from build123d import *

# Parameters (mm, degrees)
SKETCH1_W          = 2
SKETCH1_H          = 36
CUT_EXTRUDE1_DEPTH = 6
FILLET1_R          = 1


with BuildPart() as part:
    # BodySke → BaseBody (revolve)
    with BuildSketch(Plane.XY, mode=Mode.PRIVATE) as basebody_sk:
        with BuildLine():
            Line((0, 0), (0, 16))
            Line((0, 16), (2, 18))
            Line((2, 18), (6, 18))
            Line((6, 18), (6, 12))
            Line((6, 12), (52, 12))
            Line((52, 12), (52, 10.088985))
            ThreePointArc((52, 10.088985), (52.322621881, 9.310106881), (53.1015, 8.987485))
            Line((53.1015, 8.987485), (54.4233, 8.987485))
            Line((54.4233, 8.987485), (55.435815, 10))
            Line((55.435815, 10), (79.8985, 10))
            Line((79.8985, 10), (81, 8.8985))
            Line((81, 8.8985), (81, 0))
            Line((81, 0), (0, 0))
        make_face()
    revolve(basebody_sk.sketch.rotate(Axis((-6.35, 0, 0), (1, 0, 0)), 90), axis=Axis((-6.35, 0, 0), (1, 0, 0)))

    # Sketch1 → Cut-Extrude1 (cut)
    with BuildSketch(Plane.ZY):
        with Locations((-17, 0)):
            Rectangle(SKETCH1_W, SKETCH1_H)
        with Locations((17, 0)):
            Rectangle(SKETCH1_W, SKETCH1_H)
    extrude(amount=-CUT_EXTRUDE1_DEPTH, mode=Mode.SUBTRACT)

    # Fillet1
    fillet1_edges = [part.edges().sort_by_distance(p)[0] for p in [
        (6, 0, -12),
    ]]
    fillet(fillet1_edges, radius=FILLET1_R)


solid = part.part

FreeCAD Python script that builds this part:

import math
import FreeCAD as App
import Part
import Sketcher
from FreeCAD import Vector
Q = App.Units.Quantity


def edges_at(feature, points):
    """Names of the edges that pass closest to the given points."""
    edges = feature.Shape.Edges
    near = lambda p: min(range(len(edges)), key=lambda i: edges[i].distToShape(Part.Vertex(*p))[0])
    return sorted({f"Edge{near(p) + 1}" for p in points})


def add_polygon(sketch, points):
    """Adds a closed chain of lines whose ends are joined by coincident constraints."""
    first, n = sketch.GeometryCount, len(points)
    for a, b in zip(points, points[1:] + points[:1]):
        sketch.addGeometry(Part.LineSegment(App.Vector(*a, 0), App.Vector(*b, 0)), False)
    for i in range(n):
        sketch.addConstraint(Sketcher.Constraint("Coincident", first + i, 2, first + (i + 1) % n, 1))

doc = App.newDocument("Part")
body = doc.addObject("PartDesign::Body", "Body")

sketch1 = doc.addObject("Sketcher::SketchObject", "Sketch")
body.addObject(sketch1)
sketch1.AttachmentSupport = (doc.XY_Plane, [""])
sketch1.MapMode = "FlatFace"
sketch1.addGeometry(Part.LineSegment(Vector(0, 16, 0), Vector(0, 0, 0)), False)
sketch1.addGeometry(Part.LineSegment(Vector(0, 0, 0), Vector(81, 0, 0)), False)
sketch1.addGeometry(Part.LineSegment(Vector(81, 0, 0), Vector(81, 8.9, 0)), False)
sketch1.addGeometry(Part.LineSegment(Vector(81, 8.9, 0), Vector(79.9, 10, 0)), False)
sketch1.addGeometry(Part.LineSegment(Vector(79.9, 10, 0), Vector(55.4, 10, 0)), False)
sketch1.addGeometry(Part.LineSegment(Vector(55.4, 10, 0), Vector(54.4, 9, 0)), False)
sketch1.addGeometry(Part.LineSegment(Vector(54.4, 9, 0), Vector(53.1, 9, 0)), False)
sketch1.addGeometry(Part.ArcOfCircle(Part.Circle(Vector(53.1, 10.1, 0), Vector(0, 0, 1), 1.1), math.radians(-180), math.radians(-90)), False)
sketch1.addGeometry(Part.LineSegment(Vector(52, 10.1, 0), Vector(52, 12, 0)), False)
sketch1.addGeometry(Part.LineSegment(Vector(52, 12, 0), Vector(6, 12, 0)), False)
sketch1.addGeometry(Part.LineSegment(Vector(6, 12, 0), Vector(6, 18, 0)), False)
sketch1.addGeometry(Part.LineSegment(Vector(6, 18, 0), Vector(2, 18, 0)), False)
sketch1.addGeometry(Part.LineSegment(Vector(2, 18, 0), Vector(0, 16, 0)), False)
sketch1.addConstraint(Sketcher.Constraint("Coincident", 0, 2, 1, 1))
sketch1.addConstraint(Sketcher.Constraint("Coincident", 1, 2, 2, 1))
sketch1.addConstraint(Sketcher.Constraint("Coincident", 2, 2, 3, 1))
sketch1.addConstraint(Sketcher.Constraint("Coincident", 3, 2, 4, 1))
sketch1.addConstraint(Sketcher.Constraint("Coincident", 4, 2, 5, 1))
sketch1.addConstraint(Sketcher.Constraint("Coincident", 5, 2, 6, 1))
sketch1.addConstraint(Sketcher.Constraint("Tangent", 6, 2, 7, 2))
sketch1.addConstraint(Sketcher.Constraint("Tangent", 7, 1, 8, 1))
sketch1.addConstraint(Sketcher.Constraint("Coincident", 8, 2, 9, 1))
sketch1.addConstraint(Sketcher.Constraint("Coincident", 9, 2, 10, 1))
sketch1.addConstraint(Sketcher.Constraint("Coincident", 10, 2, 11, 1))
sketch1.addConstraint(Sketcher.Constraint("Coincident", 11, 2, 12, 1))
sketch1.addConstraint(Sketcher.Constraint("Coincident", 12, 2, 0, 1))
sketch1.addConstraint(Sketcher.Constraint("Vertical", 0))
sketch1.addConstraint(Sketcher.Constraint("Horizontal", 1))
sketch1.addConstraint(Sketcher.Constraint("Vertical", 2))
sketch1.addConstraint(Sketcher.Constraint("Horizontal", 4))
sketch1.addConstraint(Sketcher.Constraint("Horizontal", 6))
sketch1.addConstraint(Sketcher.Constraint("Vertical", 8))
sketch1.addConstraint(Sketcher.Constraint("Horizontal", 9))
sketch1.addConstraint(Sketcher.Constraint("Vertical", 10))
sketch1.addConstraint(Sketcher.Constraint("Horizontal", 11))
sketch1.addConstraint(Sketcher.Constraint("Coincident", 0, 2, -1, 1))
sketch1.addConstraint(Sketcher.Constraint("Perpendicular", 3, 5))
sketch1.addConstraint(Sketcher.Constraint("Parallel", 5, 12))
sketch1.addConstraint(Sketcher.Constraint("DistanceX", 1, 1, 1, 2, Q("81 mm")))
sketch1.addConstraint(Sketcher.Constraint("DistanceX", 9, 2, 9, 1, Q("46 mm")))
sketch1.addConstraint(Sketcher.Constraint("DistanceX", 11, 2, 11, 1, Q("4 mm")))
sketch1.addConstraint(Sketcher.Constraint("DistanceY", 0, 2, 0, 1, Q("16 mm")))
sketch1.addConstraint(Sketcher.Constraint("DistanceY", 10, 1, 10, 2, Q("6 mm")))
sketch1.addConstraint(Sketcher.Constraint("Angle", 3, Q("135 deg")))
sketch1.addConstraint(Sketcher.Constraint("DistanceY", -1, 1, 3, 2, Q("10 mm")))
sketch1.addConstraint(Sketcher.Constraint("DistanceX", -1, 1, 7, 1, Q("52 mm")))
sketch1.addConstraint(Sketcher.Constraint("Radius", 7, Q("1.1015 mm")))
sketch1.addConstraint(Sketcher.Constraint("DistanceX", 6, 2, 6, 1, Q("1.3218 mm")))
sketch1.addConstraint(Sketcher.Constraint("DistanceY", 2, 1, 2, 2, Q("8.8985 mm")))
sketch1.addConstraint(Sketcher.Constraint("DistanceX", 4, 2, 4, 1, Q("24.462685 mm")))
revolution = doc.addObject("PartDesign::Revolution", "Revolution")
body.addObject(revolution)
revolution.Profile = sketch1
revolution.ReferenceAxis = (sketch1, ["H_Axis"])
revolution.Angle = 360

sketch2 = doc.addObject("Sketcher::SketchObject", "Sketch001")
body.addObject(sketch2)
sketch2.AttachmentSupport = (doc.YZ_Plane, [""])
sketch2.MapMode = "FlatFace"
add_polygon(sketch2, [(18, -18), (-18, -18), (-18, -16), (18, -16)])
add_polygon(sketch2, [(18, 16), (-18, 16), (-18, 18), (18, 18)])
sketch2.addConstraint(Sketcher.Constraint("Horizontal", 0))
sketch2.addConstraint(Sketcher.Constraint("Vertical", 1))
sketch2.addConstraint(Sketcher.Constraint("Horizontal", 2))
sketch2.addConstraint(Sketcher.Constraint("Vertical", 3))
sketch2.addConstraint(Sketcher.Constraint("Horizontal", 4))
sketch2.addConstraint(Sketcher.Constraint("Vertical", 5))
sketch2.addConstraint(Sketcher.Constraint("Horizontal", 6))
sketch2.addConstraint(Sketcher.Constraint("Vertical", 7))
sketch2.addConstraint(Sketcher.Constraint("Symmetric", 2, 2, 4, 2, -1, 1))
sketch2.addConstraint(Sketcher.Constraint("Symmetric", 0, 2, 6, 2, -1, 1))
sketch2.addConstraint(Sketcher.Constraint("Vertical", 1, 2, 4, 2))
sketch2.addConstraint(Sketcher.Constraint("DistanceX", 0, 2, 0, 1, Q("36 mm")))
sketch2.addConstraint(Sketcher.Constraint("DistanceY", 1, 1, 1, 2, Q("2 mm")))
sketch2.addConstraint(Sketcher.Constraint("DistanceY", 0, 2, -1, 1, Q("18 mm")))
pocket1 = doc.addObject("PartDesign::Pocket", "Pocket")
body.addObject(pocket1)
pocket1.Profile = sketch2
pocket1.Length = 6
pocket1.Reversed = True
doc.recompute()

fillet = doc.addObject("PartDesign::Fillet", "Fillet")
body.addObject(fillet)
fillet.Base = (pocket1, edges_at(pocket1, [(6, 0, -12)]))
fillet.Radius = 1

doc.recompute()
